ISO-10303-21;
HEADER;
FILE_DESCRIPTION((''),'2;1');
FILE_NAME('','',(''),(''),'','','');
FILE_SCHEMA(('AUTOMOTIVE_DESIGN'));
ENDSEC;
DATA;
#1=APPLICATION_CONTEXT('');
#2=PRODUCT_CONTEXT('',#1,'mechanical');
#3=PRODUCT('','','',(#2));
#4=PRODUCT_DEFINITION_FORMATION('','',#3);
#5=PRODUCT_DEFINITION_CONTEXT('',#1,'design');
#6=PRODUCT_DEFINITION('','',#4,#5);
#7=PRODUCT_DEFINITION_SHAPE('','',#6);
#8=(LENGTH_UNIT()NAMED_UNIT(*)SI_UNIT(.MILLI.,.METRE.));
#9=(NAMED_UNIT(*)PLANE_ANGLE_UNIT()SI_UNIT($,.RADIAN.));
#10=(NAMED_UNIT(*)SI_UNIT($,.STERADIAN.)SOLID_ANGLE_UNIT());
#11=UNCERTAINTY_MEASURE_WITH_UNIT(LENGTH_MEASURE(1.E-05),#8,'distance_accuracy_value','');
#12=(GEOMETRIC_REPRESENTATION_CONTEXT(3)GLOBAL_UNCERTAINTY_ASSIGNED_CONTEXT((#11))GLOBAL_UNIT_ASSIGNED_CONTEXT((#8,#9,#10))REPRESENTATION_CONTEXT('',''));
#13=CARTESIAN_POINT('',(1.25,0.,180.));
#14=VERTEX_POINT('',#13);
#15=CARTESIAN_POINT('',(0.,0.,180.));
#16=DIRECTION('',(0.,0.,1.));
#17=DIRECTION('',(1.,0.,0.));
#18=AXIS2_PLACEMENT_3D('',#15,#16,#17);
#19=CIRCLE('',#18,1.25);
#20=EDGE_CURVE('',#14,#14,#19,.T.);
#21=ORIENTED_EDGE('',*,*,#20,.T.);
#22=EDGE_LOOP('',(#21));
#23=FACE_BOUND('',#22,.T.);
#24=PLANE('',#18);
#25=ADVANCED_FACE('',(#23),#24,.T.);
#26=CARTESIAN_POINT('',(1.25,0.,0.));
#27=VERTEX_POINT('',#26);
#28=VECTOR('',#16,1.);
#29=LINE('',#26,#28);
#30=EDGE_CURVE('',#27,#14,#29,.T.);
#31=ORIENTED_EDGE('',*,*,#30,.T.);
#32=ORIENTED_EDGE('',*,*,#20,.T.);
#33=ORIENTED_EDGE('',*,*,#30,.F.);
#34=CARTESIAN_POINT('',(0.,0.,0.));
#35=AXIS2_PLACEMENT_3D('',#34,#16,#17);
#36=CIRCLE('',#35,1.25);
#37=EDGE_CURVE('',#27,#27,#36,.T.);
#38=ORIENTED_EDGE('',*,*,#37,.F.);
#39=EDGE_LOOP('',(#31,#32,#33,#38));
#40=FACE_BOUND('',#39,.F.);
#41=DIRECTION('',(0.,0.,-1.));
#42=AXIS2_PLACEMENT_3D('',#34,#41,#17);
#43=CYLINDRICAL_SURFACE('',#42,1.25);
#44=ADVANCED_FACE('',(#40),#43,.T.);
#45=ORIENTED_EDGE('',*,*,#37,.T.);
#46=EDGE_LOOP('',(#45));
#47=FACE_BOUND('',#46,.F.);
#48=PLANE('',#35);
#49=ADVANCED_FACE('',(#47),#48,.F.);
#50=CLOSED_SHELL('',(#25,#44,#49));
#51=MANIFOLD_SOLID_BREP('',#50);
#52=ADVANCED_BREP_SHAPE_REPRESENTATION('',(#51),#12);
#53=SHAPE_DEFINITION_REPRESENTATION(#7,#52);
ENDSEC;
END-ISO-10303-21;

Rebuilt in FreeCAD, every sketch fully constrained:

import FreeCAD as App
import Part
import Sketcher
from FreeCAD import Vector
Q = App.Units.Quantity

doc = App.newDocument("Part")
body = doc.addObject("PartDesign::Body", "Body")

# Sketch on XY plane
sketch1 = body.newObject("Sketcher::SketchObject", "Sketch")
sketch1.AttachmentSupport = (doc.getObject("XY_Plane"), [""])
sketch1.MapMode = "FlatFace"
sketch1.addGeometry(Part.Circle(Vector(0, 0, 0), Vector(0, 0, 1), 1.2), False)
sketch1.addConstraint(Sketcher.Constraint("Coincident", 0, 3, -1, 1))
sketch1.addConstraint(Sketcher.Constraint("Diameter", 0, Q("2.5 mm")))
pad1 = body.newObject("PartDesign::Pad", "Pad")
pad1.Profile = sketch1
pad1.Length = 180

doc.recompute()
